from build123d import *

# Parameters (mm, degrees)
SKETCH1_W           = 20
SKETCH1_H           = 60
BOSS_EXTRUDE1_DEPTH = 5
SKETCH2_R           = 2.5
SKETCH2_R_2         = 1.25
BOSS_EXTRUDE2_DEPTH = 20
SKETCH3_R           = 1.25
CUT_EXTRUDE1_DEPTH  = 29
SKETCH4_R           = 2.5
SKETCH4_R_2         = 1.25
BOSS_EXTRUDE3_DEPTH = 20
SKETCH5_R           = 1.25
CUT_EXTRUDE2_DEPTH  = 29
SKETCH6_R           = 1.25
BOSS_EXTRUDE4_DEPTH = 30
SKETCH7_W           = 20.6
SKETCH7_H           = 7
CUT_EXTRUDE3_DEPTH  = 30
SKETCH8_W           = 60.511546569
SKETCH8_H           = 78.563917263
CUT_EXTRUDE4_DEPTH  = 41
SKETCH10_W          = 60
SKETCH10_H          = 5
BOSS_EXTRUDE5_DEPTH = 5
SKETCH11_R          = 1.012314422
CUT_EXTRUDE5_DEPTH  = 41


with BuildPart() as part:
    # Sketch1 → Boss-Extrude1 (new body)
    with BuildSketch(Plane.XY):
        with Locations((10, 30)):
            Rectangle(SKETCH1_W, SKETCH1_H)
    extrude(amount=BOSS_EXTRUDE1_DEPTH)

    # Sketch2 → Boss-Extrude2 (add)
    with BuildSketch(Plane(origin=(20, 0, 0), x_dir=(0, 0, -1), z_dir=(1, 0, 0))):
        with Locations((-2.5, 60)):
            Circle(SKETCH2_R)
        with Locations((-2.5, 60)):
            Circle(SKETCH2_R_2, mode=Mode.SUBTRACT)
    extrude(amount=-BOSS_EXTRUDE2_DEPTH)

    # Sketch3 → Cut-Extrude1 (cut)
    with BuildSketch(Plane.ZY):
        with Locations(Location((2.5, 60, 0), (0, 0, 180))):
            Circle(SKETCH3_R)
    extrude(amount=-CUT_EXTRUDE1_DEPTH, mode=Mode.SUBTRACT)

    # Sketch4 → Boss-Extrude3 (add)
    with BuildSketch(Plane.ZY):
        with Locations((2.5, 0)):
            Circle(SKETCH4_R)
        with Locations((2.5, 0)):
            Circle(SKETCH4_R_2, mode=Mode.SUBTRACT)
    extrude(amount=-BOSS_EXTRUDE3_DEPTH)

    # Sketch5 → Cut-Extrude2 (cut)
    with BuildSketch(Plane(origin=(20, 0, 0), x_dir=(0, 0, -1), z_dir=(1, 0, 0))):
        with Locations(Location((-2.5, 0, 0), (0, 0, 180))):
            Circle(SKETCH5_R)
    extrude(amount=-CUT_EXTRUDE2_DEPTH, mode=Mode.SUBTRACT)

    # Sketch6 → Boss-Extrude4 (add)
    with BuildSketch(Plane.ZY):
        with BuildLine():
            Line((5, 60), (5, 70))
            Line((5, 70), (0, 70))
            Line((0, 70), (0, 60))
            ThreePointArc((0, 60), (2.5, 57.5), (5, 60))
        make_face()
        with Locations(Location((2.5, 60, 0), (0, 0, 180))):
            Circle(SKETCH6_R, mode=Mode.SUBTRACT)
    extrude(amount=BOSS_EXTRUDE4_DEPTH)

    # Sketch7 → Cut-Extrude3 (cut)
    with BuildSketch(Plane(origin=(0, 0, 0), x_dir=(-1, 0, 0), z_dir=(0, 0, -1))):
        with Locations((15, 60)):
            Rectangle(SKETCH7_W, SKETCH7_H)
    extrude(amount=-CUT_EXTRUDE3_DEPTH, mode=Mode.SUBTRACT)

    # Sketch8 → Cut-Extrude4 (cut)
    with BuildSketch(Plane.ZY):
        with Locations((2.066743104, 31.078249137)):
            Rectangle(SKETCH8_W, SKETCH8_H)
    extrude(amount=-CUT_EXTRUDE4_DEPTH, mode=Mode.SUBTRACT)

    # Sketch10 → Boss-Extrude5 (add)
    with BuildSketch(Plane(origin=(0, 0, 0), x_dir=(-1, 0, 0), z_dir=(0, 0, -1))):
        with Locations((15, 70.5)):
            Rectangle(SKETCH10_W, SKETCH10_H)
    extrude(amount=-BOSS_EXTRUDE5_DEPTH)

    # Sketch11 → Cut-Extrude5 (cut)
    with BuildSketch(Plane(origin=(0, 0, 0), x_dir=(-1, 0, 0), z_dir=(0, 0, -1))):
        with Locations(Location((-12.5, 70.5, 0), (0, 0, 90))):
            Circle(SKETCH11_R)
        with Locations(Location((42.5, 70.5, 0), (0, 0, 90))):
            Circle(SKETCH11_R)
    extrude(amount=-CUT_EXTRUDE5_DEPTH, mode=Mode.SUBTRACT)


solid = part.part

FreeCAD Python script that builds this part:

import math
import FreeCAD as App
import Part
import Sketcher
Q = App.Units.Quantity

doc = App.newDocument("Part")
body = doc.addObject("PartDesign::Body", "Body")

sketch1 = doc.addObject("Sketcher::SketchObject", "Sketch")
body.addObject(sketch1)
sketch1.AttachmentSupport = (doc.XY_Plane, [""])
sketch1.MapMode = "FlatFace"
sketch1.addGeometry(Part.LineSegment(App.Vector(0, 60, 0), App.Vector(0, 0, 0)), False)
sketch1.addGeometry(Part.LineSegment(App.Vector(0, 0, 0), App.Vector(20, 0, 0)), False)
sketch1.addGeometry(Part.LineSegment(App.Vector(20, 0, 0), App.Vector(20, 60, 0)), False)
sketch1.addGeometry(Part.LineSegment(App.Vector(20, 60, 0), App.Vector(0, 60, 0)), False)
sketch1.addConstraint(Sketcher.Constraint("Coincident", 0, 2, 1, 1))
sketch1.addConstraint(Sketcher.Constraint("Coincident", 1, 2, 2, 1))
sketch1.addConstraint(Sketcher.Constraint("Coincident", 2, 2, 3, 1))
sketch1.addConstraint(Sketcher.Constraint("Coincident", 3, 2, 0, 1))
sketch1.addConstraint(Sketcher.Constraint("Vertical", 0))
sketch1.addConstraint(Sketcher.Constraint("Horizontal", 1))
sketch1.addConstraint(Sketcher.Constraint("Vertical", 2))
sketch1.addConstraint(Sketcher.Constraint("Horizontal", 3))
sketch1.addConstraint(Sketcher.Constraint("Coincident", 0, 2, -1, 1))
sketch1.addConstraint(Sketcher.Constraint("DistanceX", 1, 1, 1, 2, Q("20 mm")))
sketch1.addConstraint(Sketcher.Constraint("DistanceY", 0, 2, 0, 1, Q("60 mm")))
pad1 = doc.addObject("PartDesign::Pad", "Pad")
body.addObject(pad1)
pad1.Profile = sketch1
pad1.Length = 5

sketch2 = doc.addObject("Sketcher::SketchObject", "Sketch001")
body.addObject(sketch2)
sketch2.AttachmentSupport = (doc.YZ_Plane, [""])
sketch2.MapMode = "FlatFace"
sketch2.AttachmentOffset = App.Placement(App.Vector(0, 0, 20), App.Rotation())
sketch2.addGeometry(Part.Circle(App.Vector(60, 2.5, 0), App.Vector(0, 0, 1), 2.5), False)
sketch2.addGeometry(Part.Circle(App.Vector(60, 2.5, 0), App.Vector(0, 0, 1), 1.25), False)
sketch2.addConstraint(Sketcher.Constraint("Coincident", 1, 3, 0, 3))
sketch2.addConstraint(Sketcher.Constraint("Diameter", 0, Q("5 mm")))
sketch2.addConstraint(Sketcher.Constraint("Diameter", 1, Q("2.5 mm")))
sketch2.addConstraint(Sketcher.Constraint("DistanceX", -1, 1, 0, 3, Q("60 mm")))
sketch2.addConstraint(Sketcher.Constraint("DistanceY", -1, 1, 0, 3, Q("2.5 mm")))
pad2 = doc.addObject("PartDesign::Pad", "Pad001")
body.addObject(pad2)
pad2.Profile = sketch2
pad2.Length = 20
pad2.Reversed = True

sketch3 = doc.addObject("Sketcher::SketchObject", "Sketch002")
body.addObject(sketch3)
sketch3.AttachmentSupport = (doc.YZ_Plane, [""])
sketch3.MapMode = "FlatFace"
sketch3.addGeometry(Part.Circle(App.Vector(60, 2.5, 0), App.Vector(0, 0, 1), 1.25), False)
sketch3.addConstraint(Sketcher.Constraint("Diameter", 0, Q("2.5 mm")))
sketch3.addConstraint(Sketcher.Constraint("DistanceX", -1, 1, 0, 3, Q("60 mm")))
sketch3.addConstraint(Sketcher.Constraint("DistanceY", -1, 1, 0, 3, Q("2.5 mm")))
pocket1 = doc.addObject("PartDesign::Pocket", "Pocket")
body.addObject(pocket1)
pocket1.Profile = sketch3
pocket1.Length = 29
pocket1.Reversed = True

sketch4 = doc.addObject("Sketcher::SketchObject", "Sketch003")
body.addObject(sketch4)
sketch4.AttachmentSupport = (doc.YZ_Plane, [""])
sketch4.MapMode = "FlatFace"
sketch4.addGeometry(Part.Circle(App.Vector(0, 2.5, 0), App.Vector(0, 0, 1), 2.5), False)
sketch4.addGeometry(Part.Circle(App.Vector(0, 2.5, 0), App.Vector(0, 0, 1), 1.25), False)
sketch4.addConstraint(Sketcher.Constraint("Coincident", 1, 3, 0, 3))
sketch4.addConstraint(Sketcher.Constraint("PointOnObject", 0, 3, -2))
sketch4.addConstraint(Sketcher.Constraint("Diameter", 0, Q("5 mm")))
sketch4.addConstraint(Sketcher.Constraint("Diameter", 1, Q("2.5 mm")))
sketch4.addConstraint(Sketcher.Constraint("DistanceY", -1, 1, 0, 3, Q("2.5 mm")))
pad3 = doc.addObject("PartDesign::Pad", "Pad002")
body.addObject(pad3)
pad3.Profile = sketch4
pad3.Length = 20

sketch5 = doc.addObject("Sketcher::SketchObject", "Sketch004")
body.addObject(sketch5)
sketch5.AttachmentSupport = (doc.YZ_Plane, [""])
sketch5.MapMode = "FlatFace"
sketch5.AttachmentOffset = App.Placement(App.Vector(0, 0, 20), App.Rotation())
sketch5.addGeometry(Part.Circle(App.Vector(0, 2.5, 0), App.Vector(0, 0, 1), 1.25), False)
sketch5.addConstraint(Sketcher.Constraint("PointOnObject", 0, 3, -2))
sketch5.addConstraint(Sketcher.Constraint("Diameter", 0, Q("2.5 mm")))
sketch5.addConstraint(Sketcher.Constraint("DistanceY", -1, 1, 0, 3, Q("2.5 mm")))
pocket2 = doc.addObject("PartDesign::Pocket", "Pocket001")
body.addObject(pocket2)
pocket2.Profile = sketch5
pocket2.Length = 29

sketch6 = doc.addObject("Sketcher::SketchObject", "Sketch005")
body.addObject(sketch6)
sketch6.AttachmentSupport = (doc.YZ_Plane, [""])
sketch6.MapMode = "FlatFace"
sketch6.addGeometry(Part.LineSegment(App.Vector(60, 5, 0), App.Vector(70, 5, 0)), False)
sketch6.addGeometry(Part.LineSegment(App.Vector(70, 5, 0), App.Vector(70, 0, 0)), False)
sketch6.addGeometry(Part.LineSegment(App.Vector(70, 0, 0), App.Vector(60, 0, 0)), False)
sketch6.addGeometry(Part.ArcOfCircle(Part.Circle(App.Vector(60, 2.5, 0), App.Vector(0, 0, 1), 2.5), math.radians(90), math.radians(270)), False)
sketch6.addGeometry(Part.Circle(App.Vector(60, 2.5, 0), App.Vector(0, 0, 1), 1.25), False)
sketch6.addConstraint(Sketcher.Constraint("Coincident", 0, 2, 1, 1))
sketch6.addConstraint(Sketcher.Constraint("Coincident", 1, 2, 2, 1))
sketch6.addConstraint(Sketcher.Constraint("Tangent", 2, 2, 3, 2))
sketch6.addConstraint(Sketcher.Constraint("Tangent", 3, 1, 0, 1))
sketch6.addConstraint(Sketcher.Constraint("Horizontal", 0))
sketch6.addConstraint(Sketcher.Constraint("Vertical", 1))
sketch6.addConstraint(Sketcher.Constraint("Horizontal", 2))
sketch6.addConstraint(Sketcher.Constraint("Coincident", 4, 3, 3, 3))
sketch6.addConstraint(Sketcher.Constraint("PointOnObject", 1, 2, -1))
sketch6.addConstraint(Sketcher.Constraint("Diameter", 4, Q("2.5 mm")))
sketch6.addConstraint(Sketcher.Constraint("Radius", 3, Q("2.5 mm")))
sketch6.addConstraint(Sketcher.Constraint("DistanceX", 0, 1, 0, 2, Q("10 mm")))
sketch6.addConstraint(Sketcher.Constraint("DistanceX", -1, 1, 3, 3, Q("60 mm")))
pad4 = doc.addObject("PartDesign::Pad", "Pad003")
body.addObject(pad4)
pad4.Profile = sketch6
pad4.Length = 30
pad4.Reversed = True

sketch7 = doc.addObject("Sketcher::SketchObject", "Sketch006")
body.addObject(sketch7)
sketch7.AttachmentSupport = (doc.XY_Plane, [""])
sketch7.MapMode = "FlatFace"
sketch7.addGeometry(Part.LineSegment(App.Vector(-4.7, 63.5, 0), App.Vector(-4.7, 56.5, 0)), False)
sketch7.addGeometry(Part.LineSegment(App.Vector(-4.7, 56.5, 0), App.Vector(-25.3, 56.5, 0)), False)
sketch7.addGeometry(Part.LineSegment(App.Vector(-25.3, 56.5, 0), App.Vector(-25.3, 63.5, 0)), False)
sketch7.addGeometry(Part.LineSegment(App.Vector(-25.3, 63.5, 0), App.Vector(-4.7, 63.5, 0)), False)
sketch7.addConstraint(Sketcher.Constraint("Coincident", 0, 2, 1, 1))
sketch7.addConstraint(Sketcher.Constraint("Coincident", 1, 2, 2, 1))
sketch7.addConstraint(Sketcher.Constraint("Coincident", 2, 2, 3, 1))
sketch7.addConstraint(Sketcher.Constraint("Coincident", 3, 2, 0, 1))
sketch7.addConstraint(Sketcher.Constraint("Vertical", 0))
sketch7.addConstraint(Sketcher.Constraint("Horizontal", 1))
sketch7.addConstraint(Sketcher.Constraint("Vertical", 2))
sketch7.addConstraint(Sketcher.Constraint("Horizontal", 3))
sketch7.addConstraint(Sketcher.Constraint("DistanceY", 0, 2, 0, 1, Q("7 mm")))
sketch7.addConstraint(Sketcher.Constraint("DistanceX", 1, 2, 1, 1, Q("20.6 mm")))
sketch7.addConstraint(Sketcher.Constraint("DistanceX", 0, 2, -1, 1, Q("4.7 mm")))
sketch7.addConstraint(Sketcher.Constraint("DistanceY", -1, 1, 0, 2, Q("56.5 mm")))
pocket3 = doc.addObject("PartDesign::Pocket", "Pocket002")
body.addObject(pocket3)
pocket3.Profile = sketch7
pocket3.Length = 30
pocket3.Reversed = True

sketch8 = doc.addObject("Sketcher::SketchObject", "Sketch007")
body.addObject(sketch8)
sketch8.AttachmentSupport = (doc.YZ_Plane, [""])
sketch8.MapMode = "FlatFace"
sketch8.addGeometry(Part.LineSegment(App.Vector(70.360208, -28.18903, 0), App.Vector(-8.203709, -28.18903, 0)), False)
sketch8.addGeometry(Part.LineSegment(App.Vector(-8.203709, -28.18903, 0), App.Vector(-8.203709, 32.322516, 0)), False)
sketch8.addGeometry(Part.LineSegment(App.Vector(-8.203709, 32.322516, 0), App.Vector(70.360208, 32.322516, 0)), False)
sketch8.addGeometry(Part.LineSegment(App.Vector(70.360208, 32.322516, 0), App.Vector(70.360208, -28.18903, 0)), False)
sketch8.addConstraint(Sketcher.Constraint("Coincident", 0, 2, 1, 1))
sketch8.addConstraint(Sketcher.Constraint("Coincident", 1, 2, 2, 1))
sketch8.addConstraint(Sketcher.Constraint("Coincident", 2, 2, 3, 1))
sketch8.addConstraint(Sketcher.Constraint("Coincident", 3, 2, 0, 1))
sketch8.addConstraint(Sketcher.Constraint("Horizontal", 0))
sketch8.addConstraint(Sketcher.Constraint("Vertical", 1))
sketch8.addConstraint(Sketcher.Constraint("Horizontal", 2))
sketch8.addConstraint(Sketcher.Constraint("Vertical", 3))
sketch8.addConstraint(Sketcher.Constraint("DistanceX", 0, 2, 0, 1, Q("78.563917 mm")))
sketch8.addConstraint(Sketcher.Constraint("DistanceY", 1, 1, 1, 2, Q("60.511547 mm")))
sketch8.addConstraint(Sketcher.Constraint("DistanceX", 0, 2, -1, 1, Q("8.203709 mm")))
sketch8.addConstraint(Sketcher.Constraint("DistanceY", 0, 2, -1, 1, Q("28.18903 mm")))
pocket4 = doc.addObject("PartDesign::Pocket", "Pocket003")
body.addObject(pocket4)
pocket4.Profile = sketch8
pocket4.Length = 41
pocket4.Reversed = True

sketch9 = doc.addObject("Sketcher::SketchObject", "Sketch008")
body.addObject(sketch9)
sketch9.AttachmentSupport = (doc.XY_Plane, [""])
sketch9.MapMode = "FlatFace"
sketch9.addGeometry(Part.LineSegment(App.Vector(15, 73, 0), App.Vector(15, 68, 0)), False)
sketch9.addGeometry(Part.LineSegment(App.Vector(15, 68, 0), App.Vector(-45, 68, 0)), False)
sketch9.addGeometry(Part.LineSegment(App.Vector(-45, 68, 0), App.Vector(-45, 73, 0)), False)
sketch9.addGeometry(Part.LineSegment(App.Vector(-45, 73, 0), App.Vector(15, 73, 0)), False)
sketch9.addConstraint(Sketcher.Constraint("Coincident", 0, 2, 1, 1))
sketch9.addConstraint(Sketcher.Constraint("Coincident", 1, 2, 2, 1))
sketch9.addConstraint(Sketcher.Constraint("Coincident", 2, 2, 3, 1))
sketch9.addConstraint(Sketcher.Constraint("Coincident", 3, 2, 0, 1))
sketch9.addConstraint(Sketcher.Constraint("Vertical", 0))
sketch9.addConstraint(Sketcher.Constraint("Horizontal", 1))
sketch9.addConstraint(Sketcher.Constraint("Vertical", 2))
sketch9.addConstraint(Sketcher.Constraint("Horizontal", 3))
sketch9.addConstraint(Sketcher.Constraint("DistanceX", 1, 2, 1, 1, Q("60 mm")))
sketch9.addConstraint(Sketcher.Constraint("DistanceY", 0, 2, 0, 1, Q("5 mm")))
sketch9.addConstraint(Sketcher.Constraint("DistanceX", -1, 1, 0, 2, Q("15 mm")))
sketch9.addConstraint(Sketcher.Constraint("DistanceY", -1, 1, 0, 2, Q("68 mm")))
pad5 = doc.addObject("PartDesign::Pad", "Pad004")
body.addObject(pad5)
pad5.Profile = sketch9
pad5.Length = 5

sketch10 = doc.addObject("Sketcher::SketchObject", "Sketch009")
body.addObject(sketch10)
sketch10.AttachmentSupport = (doc.XY_Plane, [""])
sketch10.MapMode = "FlatFace"
sketch10.addGeometry(Part.Circle(App.Vector(12.5, 70.5, 0), App.Vector(0, 0, 1), 1.012314), False)
sketch10.addGeometry(Part.Circle(App.Vector(-42.5, 70.5, 0), App.Vector(0, 0, 1), 1.012314), False)
sketch10.addConstraint(Sketcher.Constraint("Equal", 0, 1))
sketch10.addConstraint(Sketcher.Constraint("Horizontal", 0, 3, 1, 3))
sketch10.addConstraint(Sketcher.Constraint("DistanceX", 1, 3, 0, 3, Q("55 mm")))
sketch10.addConstraint(Sketcher.Constraint("DistanceX", -1, 1, 0, 3, Q("12.5 mm")))
sketch10.addConstraint(Sketcher.Constraint("DistanceY", -1, 1, 0, 3, Q("70.5 mm")))
sketch10.addConstraint(Sketcher.Constraint("Diameter", 0, Q("2.024629 mm")))
pocket5 = doc.addObject("PartDesign::Pocket", "Pocket004")
body.addObject(pocket5)
pocket5.Profile = sketch10
pocket5.Length = 41
pocket5.Reversed = True

doc.recompute()
